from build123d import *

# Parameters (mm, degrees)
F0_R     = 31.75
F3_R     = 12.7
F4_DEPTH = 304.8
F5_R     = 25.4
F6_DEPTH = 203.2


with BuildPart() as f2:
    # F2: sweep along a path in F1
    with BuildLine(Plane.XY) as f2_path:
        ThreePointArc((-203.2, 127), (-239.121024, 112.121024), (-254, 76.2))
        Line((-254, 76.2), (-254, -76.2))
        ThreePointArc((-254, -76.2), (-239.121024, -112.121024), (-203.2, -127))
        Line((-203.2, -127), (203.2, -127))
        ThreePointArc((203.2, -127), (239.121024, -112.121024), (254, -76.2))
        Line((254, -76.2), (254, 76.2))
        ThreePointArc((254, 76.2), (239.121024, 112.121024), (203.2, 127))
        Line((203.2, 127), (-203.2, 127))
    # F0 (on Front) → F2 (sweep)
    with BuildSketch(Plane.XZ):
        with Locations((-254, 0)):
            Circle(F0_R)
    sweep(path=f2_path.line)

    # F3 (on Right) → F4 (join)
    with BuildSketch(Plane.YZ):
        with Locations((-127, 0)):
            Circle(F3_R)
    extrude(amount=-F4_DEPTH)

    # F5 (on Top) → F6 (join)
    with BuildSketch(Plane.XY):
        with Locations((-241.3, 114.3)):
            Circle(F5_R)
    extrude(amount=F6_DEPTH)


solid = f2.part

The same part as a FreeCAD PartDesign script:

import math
import FreeCAD as App
import Part
import Sketcher
Q = App.Units.Quantity

doc = App.newDocument("Part")
body = doc.addObject("PartDesign::Body", "Body")

sketch1 = body.newObject("Sketcher::SketchObject", "Sketch")
sketch1.AttachmentSupport = (doc.getObject("XZ_Plane"), [""])
sketch1.MapMode = "FlatFace"
sketch1.addGeometry(Part.Circle(App.Vector(-254, 0, 0), App.Vector(0, 0, 1), 32), False)
sketch1.addConstraint([
    Sketcher.Constraint("PointOnObject", 0, 3, -1),
    Sketcher.Constraint("Diameter", 0, Q("2.5 in")),
    Sketcher.Constraint("DistanceX", 0, 3, -1, 1, Q("10 in")),
])

sketch2 = body.newObject("Sketcher::SketchObject", "Sketch001")
sketch2.AttachmentSupport = (doc.getObject("XY_Plane"), [""])
sketch2.MapMode = "FlatFace"
sketch2.addGeometry([
    Part.ArcOfCircle(Part.Circle(App.Vector(-203, 76, 0), App.Vector(0, 0, 1), 51), math.radians(90), math.radians(180)),
    Part.LineSegment(App.Vector(-254, 76, 0), App.Vector(-254, -76, 0)),
    Part.ArcOfCircle(Part.Circle(App.Vector(-203, -76, 0), App.Vector(0, 0, 1), 51), math.radians(-180), math.radians(-90)),
    Part.LineSegment(App.Vector(-203, -127, 0), App.Vector(203, -127, 0)),
    Part.ArcOfCircle(Part.Circle(App.Vector(203, -76, 0), App.Vector(0, 0, 1), 51), math.radians(-90), math.radians(0)),
    Part.LineSegment(App.Vector(254, -76, 0), App.Vector(254, 76, 0)),
    Part.ArcOfCircle(Part.Circle(App.Vector(203, 76, 0), App.Vector(0, 0, 1), 51), math.radians(0), math.radians(90)),
    Part.LineSegment(App.Vector(203, 127, 0), App.Vector(-203, 127, 0)),
], False)
sketch2.addConstraint([
    Sketcher.Constraint("Tangent", 0, 2, 1, 1),
    Sketcher.Constraint("Tangent", 1, 2, 2, 1),
    Sketcher.Constraint("Tangent", 2, 2, 3, 1),
    Sketcher.Constraint("Tangent", 3, 2, 4, 1),
    Sketcher.Constraint("Tangent", 4, 2, 5, 1),
    Sketcher.Constraint("Tangent", 5, 2, 6, 1),
    Sketcher.Constraint("Tangent", 6, 2, 7, 1),
    Sketcher.Constraint("Tangent", 7, 2, 0, 1),
    Sketcher.Constraint("Vertical", 1),
    Sketcher.Constraint("Horizontal", 3),
    Sketcher.Constraint("Vertical", 5),
    Sketcher.Constraint("Horizontal", 7),
    Sketcher.Constraint("Equal", 0, 2),
    Sketcher.Constraint("Equal", 2, 4),
    Sketcher.Constraint("Equal", 4, 6),
    Sketcher.Constraint("Symmetric", 0, 3, 4, 3, -1, 1),
    Sketcher.Constraint("Radius", 0, Q("2.0000001 in")),
    Sketcher.Constraint("DistanceX", 3, 1, 3, 2, Q("16 in")),
    Sketcher.Constraint("DistanceY", 1, 2, 1, 1, Q("6 in")),
])
doc.recompute()

additivepipe = body.newObject("PartDesign::AdditivePipe", "AdditivePipe")
additivepipe.Profile = sketch1
additivepipe.Spine = (sketch2, ["Edge1", "Edge2", "Edge3", "Edge4", "Edge5", "Edge6", "Edge7", "Edge8"])

sketch3 = body.newObject("Sketcher::SketchObject", "Sketch002")
sketch3.AttachmentSupport = (doc.getObject("YZ_Plane"), [""])
sketch3.MapMode = "FlatFace"
sketch3.addGeometry(Part.Circle(App.Vector(-127, 0, 0), App.Vector(0, 0, 1), 13), False)
sketch3.addConstraint([
    Sketcher.Constraint("PointOnObject", 0, 3, -1),
    Sketcher.Constraint("Diameter", 0, Q("1 in")),
    Sketcher.Constraint("DistanceX", 0, 3, -1, 1, Q("5 in")),
])
pad1 = body.newObject("PartDesign::Pad", "Pad")
pad1.Profile = sketch3
pad1.Length = Q("12 in")
pad1.Reversed = True

sketch4 = body.newObject("Sketcher::SketchObject", "Sketch003")
sketch4.AttachmentSupport = (doc.getObject("XY_Plane"), [""])
sketch4.MapMode = "FlatFace"
sketch4.addGeometry(Part.Circle(App.Vector(-241, 114, 0), App.Vector(0, 0, 1), 25), False)
sketch4.addConstraint([
    Sketcher.Constraint("Diameter", 0, Q("2 in")),
    Sketcher.Constraint("DistanceX", 0, 3, -1, 1, Q("9.5 in")),
    Sketcher.Constraint("DistanceY", -1, 1, 0, 3, Q("4.5 in")),
])
pad2 = body.newObject("PartDesign::Pad", "Pad001")
pad2.Profile = sketch4
pad2.Length = Q("8 in")

doc.recompute()
